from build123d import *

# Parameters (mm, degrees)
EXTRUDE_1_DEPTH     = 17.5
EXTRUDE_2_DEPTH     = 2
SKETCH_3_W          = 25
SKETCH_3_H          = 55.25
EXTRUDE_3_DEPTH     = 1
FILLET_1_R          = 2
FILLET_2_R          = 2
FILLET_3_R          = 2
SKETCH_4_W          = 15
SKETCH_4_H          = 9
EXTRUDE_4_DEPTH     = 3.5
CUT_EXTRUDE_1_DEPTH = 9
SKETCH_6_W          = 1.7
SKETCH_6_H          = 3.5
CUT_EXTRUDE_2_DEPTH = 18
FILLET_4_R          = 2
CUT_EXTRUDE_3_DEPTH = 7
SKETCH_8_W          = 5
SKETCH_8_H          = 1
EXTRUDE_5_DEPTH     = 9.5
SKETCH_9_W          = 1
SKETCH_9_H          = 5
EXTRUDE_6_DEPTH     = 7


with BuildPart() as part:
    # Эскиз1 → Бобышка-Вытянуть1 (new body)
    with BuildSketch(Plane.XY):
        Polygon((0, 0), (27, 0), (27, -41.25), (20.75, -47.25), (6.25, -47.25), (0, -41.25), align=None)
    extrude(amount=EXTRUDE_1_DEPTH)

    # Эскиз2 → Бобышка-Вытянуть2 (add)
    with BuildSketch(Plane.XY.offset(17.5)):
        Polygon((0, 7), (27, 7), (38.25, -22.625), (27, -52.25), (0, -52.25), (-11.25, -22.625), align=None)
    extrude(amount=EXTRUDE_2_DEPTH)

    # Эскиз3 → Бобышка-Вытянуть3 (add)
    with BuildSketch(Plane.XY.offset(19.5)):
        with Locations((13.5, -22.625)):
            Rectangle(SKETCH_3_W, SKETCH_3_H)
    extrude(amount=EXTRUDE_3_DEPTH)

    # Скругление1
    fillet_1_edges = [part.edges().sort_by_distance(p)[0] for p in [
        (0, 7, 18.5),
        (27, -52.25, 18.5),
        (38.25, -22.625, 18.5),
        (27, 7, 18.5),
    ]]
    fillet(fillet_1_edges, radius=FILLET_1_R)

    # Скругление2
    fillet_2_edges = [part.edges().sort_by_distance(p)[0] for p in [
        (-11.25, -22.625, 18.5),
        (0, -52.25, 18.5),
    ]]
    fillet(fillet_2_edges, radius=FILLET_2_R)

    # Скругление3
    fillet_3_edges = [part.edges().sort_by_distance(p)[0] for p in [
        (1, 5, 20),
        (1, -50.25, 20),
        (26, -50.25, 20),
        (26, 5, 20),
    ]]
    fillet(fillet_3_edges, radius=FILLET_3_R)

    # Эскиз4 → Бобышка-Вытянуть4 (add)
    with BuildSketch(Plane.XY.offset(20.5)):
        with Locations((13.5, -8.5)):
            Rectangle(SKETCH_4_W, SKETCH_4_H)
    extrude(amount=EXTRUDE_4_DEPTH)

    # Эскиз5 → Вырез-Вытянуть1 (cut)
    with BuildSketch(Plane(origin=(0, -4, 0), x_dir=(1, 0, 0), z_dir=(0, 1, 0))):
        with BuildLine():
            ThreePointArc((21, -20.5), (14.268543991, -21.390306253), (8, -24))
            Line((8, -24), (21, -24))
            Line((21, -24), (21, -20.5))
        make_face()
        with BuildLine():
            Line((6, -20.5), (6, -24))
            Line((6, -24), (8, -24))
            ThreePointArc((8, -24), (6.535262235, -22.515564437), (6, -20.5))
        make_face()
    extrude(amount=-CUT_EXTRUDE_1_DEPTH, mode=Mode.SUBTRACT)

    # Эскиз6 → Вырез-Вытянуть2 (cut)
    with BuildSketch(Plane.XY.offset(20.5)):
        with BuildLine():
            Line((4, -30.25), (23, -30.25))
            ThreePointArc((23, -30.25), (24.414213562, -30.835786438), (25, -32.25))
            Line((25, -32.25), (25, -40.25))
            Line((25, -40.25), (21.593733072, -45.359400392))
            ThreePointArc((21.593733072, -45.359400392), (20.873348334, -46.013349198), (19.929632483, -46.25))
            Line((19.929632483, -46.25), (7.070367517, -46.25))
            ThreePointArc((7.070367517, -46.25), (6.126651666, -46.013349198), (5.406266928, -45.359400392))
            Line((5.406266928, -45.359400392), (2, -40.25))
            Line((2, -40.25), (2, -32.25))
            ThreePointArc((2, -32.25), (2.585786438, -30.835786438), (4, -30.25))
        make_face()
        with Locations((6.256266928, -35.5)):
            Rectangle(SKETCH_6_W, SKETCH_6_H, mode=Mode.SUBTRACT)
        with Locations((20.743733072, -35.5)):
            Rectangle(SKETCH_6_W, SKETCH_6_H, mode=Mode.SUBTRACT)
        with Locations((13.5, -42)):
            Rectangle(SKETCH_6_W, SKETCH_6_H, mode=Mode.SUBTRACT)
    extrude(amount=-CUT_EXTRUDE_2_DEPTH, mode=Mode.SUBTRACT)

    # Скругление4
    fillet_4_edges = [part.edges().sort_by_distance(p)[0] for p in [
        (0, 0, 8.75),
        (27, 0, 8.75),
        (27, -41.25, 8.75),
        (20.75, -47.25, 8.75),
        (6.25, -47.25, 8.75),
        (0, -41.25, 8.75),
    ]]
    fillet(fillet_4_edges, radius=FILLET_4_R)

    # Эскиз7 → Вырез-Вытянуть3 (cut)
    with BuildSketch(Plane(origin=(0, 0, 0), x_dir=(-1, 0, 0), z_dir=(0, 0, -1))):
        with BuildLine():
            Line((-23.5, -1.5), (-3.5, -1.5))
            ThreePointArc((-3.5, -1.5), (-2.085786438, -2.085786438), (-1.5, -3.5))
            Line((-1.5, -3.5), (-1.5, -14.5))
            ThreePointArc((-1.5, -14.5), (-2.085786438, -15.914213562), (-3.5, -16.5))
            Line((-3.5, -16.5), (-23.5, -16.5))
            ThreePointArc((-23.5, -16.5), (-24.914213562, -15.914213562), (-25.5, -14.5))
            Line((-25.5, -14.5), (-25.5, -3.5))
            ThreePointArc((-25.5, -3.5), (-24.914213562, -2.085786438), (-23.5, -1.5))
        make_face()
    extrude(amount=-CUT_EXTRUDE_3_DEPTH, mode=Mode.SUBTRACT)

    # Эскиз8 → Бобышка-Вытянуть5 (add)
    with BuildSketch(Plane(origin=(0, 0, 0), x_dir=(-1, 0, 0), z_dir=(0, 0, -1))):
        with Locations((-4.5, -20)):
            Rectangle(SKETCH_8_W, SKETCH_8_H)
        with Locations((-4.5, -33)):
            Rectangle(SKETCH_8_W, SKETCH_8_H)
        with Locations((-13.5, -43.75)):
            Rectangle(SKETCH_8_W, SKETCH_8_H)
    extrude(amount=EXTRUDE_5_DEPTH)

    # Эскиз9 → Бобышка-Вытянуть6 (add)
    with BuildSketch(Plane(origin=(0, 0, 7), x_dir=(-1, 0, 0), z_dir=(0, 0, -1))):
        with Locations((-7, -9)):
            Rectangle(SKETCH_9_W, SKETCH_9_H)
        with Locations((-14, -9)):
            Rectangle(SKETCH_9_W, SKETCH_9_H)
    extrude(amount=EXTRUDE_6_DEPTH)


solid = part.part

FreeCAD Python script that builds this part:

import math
import FreeCAD as App
import Part
import Sketcher

V = App.Vector


def edges_at(feature, points):
    """Names of the edges that pass closest to the given points."""
    edges = feature.Shape.Edges
    near = lambda p: min(range(len(edges)), key=lambda i: edges[i].distToShape(Part.Vertex(*p))[0])
    return sorted({f"Edge{near(p) + 1}" for p in points})


def add_polygon(sketch, points):
    """Adds a closed chain of lines whose ends are joined by coincident constraints."""
    first, n = sketch.GeometryCount, len(points)
    for a, b in zip(points, points[1:] + points[:1]):
        sketch.addGeometry(Part.LineSegment(App.Vector(*a, 0), App.Vector(*b, 0)), False)
    for i in range(n):
        sketch.addConstraint(Sketcher.Constraint("Coincident", first + i, 2, first + (i + 1) % n, 1))

doc = App.newDocument("Part")
params = doc.addObject("Spreadsheet::Sheet", "Params")
for row, (alias, value) in enumerate([
    ("sketch1_width", "27 mm"),
    ("sketch1_width2", "14.5 mm"),
    ("sketch1_height", "41.25 mm"),
    ("pad1_length", "17.5 mm"),
    ("sketch2_width", "27 mm"),
    ("pad2_length", "2 mm"),
    ("sketch3_width", "25 mm"),
    ("sketch3_height", "55.25 mm"),
    ("pad3_length", "1 mm"),
    ("fillet_radius", "2 mm"),
    ("fillet2_radius", "2 mm"),
    ("fillet3_radius", "2 mm"),
    ("sketch4_width", "15 mm"),
    ("sketch4_height", "9 mm"),
    ("pad4_length", "3.5 mm"),
    ("sketch5_width", "13 mm"),
    ("sketch5_width2", "2 mm"),
    ("sketch5_height", "3.5 mm"),
    ("pocket1_length", "9 mm"),
    ("sketch6_radius", "2 mm"),
    ("sketch6_width", "19 mm"),
    ("sketch6_height", "8 mm"),
    ("sketch6_width2", "1.7 mm"),
    ("sketch6_height2", "3.5 mm"),
    ("pocket2_length", "18 mm"),
    ("fillet4_radius", "2 mm"),
    ("sketch7_radius", "2 mm"),
    ("sketch7_width", "20 mm"),
    ("sketch7_height", "11 mm"),
    ("pocket3_length", "7 mm"),
    ("sketch8_width", "5 mm"),
    ("sketch8_height", "1 mm"),
    ("pad5_length", "9.5 mm"),
    ("sketch9_width", "1 mm"),
    ("sketch9_height", "5 mm"),
    ("pad6_length", "7 mm"),
], start=1):
    params.set(f"A{row}", alias)
    params.set(f"B{row}", "=" + value)
    params.setAlias(f"B{row}", alias)

body = doc.addObject("PartDesign::Body", "Body")

sketch1 = body.newObject("Sketcher::SketchObject", "Sketch")
sketch1.AttachmentSupport = (doc.getObject("XY_Plane"), [""])
sketch1.MapMode = "FlatFace"
add_polygon(sketch1, [(27, 0), (0, 0), (0, -41.25), (6.25, -47.25), (20.75, -47.25), (27, -41.25)])
sketch1.addConstraint([
    Sketcher.Constraint("Horizontal", 0),
    Sketcher.Constraint("Vertical", 1),
    Sketcher.Constraint("Horizontal", 3),
    Sketcher.Constraint("Vertical", 5),
    Sketcher.Constraint("Coincident", 0, 2, -1, 1),
    Sketcher.Constraint("Horizontal", 1, 2, 4, 2),
    Sketcher.Constraint("Equal", 2, 4),
    Sketcher.Constraint("DistanceX", 0, 2, 0, 1, 27.0),
    Sketcher.Constraint("DistanceX", 3, 1, 3, 2, 14.5),
    Sketcher.Constraint("DistanceY", 2, 2, 1, 2, 6.0),
    Sketcher.Constraint("DistanceY", 1, 2, 1, 1, 41.25),
])
sketch1.setExpression("Constraints[13]", "Params.sketch1_width")
sketch1.setExpression("Constraints[14]", "Params.sketch1_width2")
sketch1.setExpression("Constraints[16]", "Params.sketch1_height")
pad1 = body.newObject("PartDesign::Pad", "Pad")
pad1.Profile = sketch1
pad1.setExpression("Length", "Params.pad1_length")

sketch2 = body.newObject("Sketcher::SketchObject", "Sketch001")
sketch2.AttachmentSupport = (doc.getObject("XY_Plane"), [""])
sketch2.MapMode = "FlatFace"
sketch2.AttachmentOffset = App.Placement(V(0, 0, 17.5), App.Rotation())
add_polygon(sketch2, [(27, 7), (0, 7), (-11.25, -22.625), (0, -52.25), (27, -52.25), (38.25, -22.625)])
sketch2.addConstraint([
    Sketcher.Constraint("Horizontal", 0),
    Sketcher.Constraint("Horizontal", 3),
    Sketcher.Constraint("PointOnObject", 0, 2, -2),
    Sketcher.Constraint("PointOnObject", 2, 2, -2),
    Sketcher.Constraint("Parallel", 1, 4),
    Sketcher.Constraint("Parallel", 2, 5),
    Sketcher.Constraint("Horizontal", 1, 2, 4, 2),
    Sketcher.Constraint("Vertical", 3, 2, 5, 2),
    Sketcher.Constraint("DistanceX", 0, 2, 0, 1, 27.0),
    Sketcher.Constraint("DistanceY", -1, 1, 0, 2, 7.0),
    Sketcher.Constraint("DistanceX", 1, 2, 4, 2, 49.5),
    Sketcher.Constraint("DistanceY", 2, 2, -1, 1, 52.25),
])
sketch2.setExpression("Constraints[14]", "Params.sketch2_width")
pad2 = body.newObject("PartDesign::Pad", "Pad001")
pad2.Profile = sketch2
pad2.setExpression("Length", "Params.pad2_length")

sketch3 = body.newObject("Sketcher::SketchObject", "Sketch002")
sketch3.AttachmentSupport = (doc.getObject("XY_Plane"), [""])
sketch3.MapMode = "FlatFace"
sketch3.AttachmentOffset = App.Placement(V(0, 0, 19.5), App.Rotation())
add_polygon(sketch3, [(1, 5), (1, -50.25), (26, -50.25), (26, 5)])
sketch3.addConstraint([
    Sketcher.Constraint("Vertical", 0),
    Sketcher.Constraint("Horizontal", 1),
    Sketcher.Constraint("Vertical", 2),
    Sketcher.Constraint("Horizontal", 3),
    Sketcher.Constraint("DistanceX", 1, 1, 1, 2, 25.0),
    Sketcher.Constraint("DistanceX", -1, 1, 0, 2, 1.0),
    Sketcher.Constraint("DistanceY", -1, 1, 2, 2, 5.0),
    Sketcher.Constraint("DistanceY", 0, 2, 0, 1, 55.25),
])
sketch3.setExpression("Constraints[8]", "Params.sketch3_width")
sketch3.setExpression("Constraints[11]", "Params.sketch3_height")
pad3 = body.newObject("PartDesign::Pad", "Pad002")
pad3.Profile = sketch3
pad3.setExpression("Length", "Params.pad3_length")
doc.recompute()

fillet = body.newObject("PartDesign::Fillet", "Fillet")
fillet.Base = (pad3, edges_at(pad3, [
    (0, 7, 18.5),
    (27, -52.25, 18.5),
    (38.25, -22.625, 18.5),
    (27, 7, 18.5),
]))
fillet.setExpression("Radius", "Params.fillet_radius")
doc.recompute()

fillet2 = body.newObject("PartDesign::Fillet", "Fillet001")
fillet2.Base = (fillet, edges_at(fillet, [(-11.25, -22.625, 18.5), (0, -52.25, 18.5)]))
fillet2.setExpression("Radius", "Params.fillet2_radius")
doc.recompute()

fillet3 = body.newObject("PartDesign::Fillet", "Fillet002")
fillet3.Base = (fillet2, edges_at(fillet2, [
    (1, 5, 20),
    (1, -50.25, 20),
    (26, -50.25, 20),
    (26, 5, 20),
]))
fillet3.setExpression("Radius", "Params.fillet3_radius")

sketch4 = body.newObject("Sketcher::SketchObject", "Sketch003")
sketch4.AttachmentSupport = (doc.getObject("XY_Plane"), [""])
sketch4.MapMode = "FlatFace"
sketch4.AttachmentOffset = App.Placement(V(0, 0, 20.5), App.Rotation())
add_polygon(sketch4, [(6, -4), (6, -13), (21, -13), (21, -4)])
sketch4.addConstraint([
    Sketcher.Constraint("Vertical", 0),
    Sketcher.Constraint("Horizontal", 1),
    Sketcher.Constraint("Vertical", 2),
    Sketcher.Constraint("Horizontal", 3),
    Sketcher.Constraint("DistanceX", 1, 1, 1, 2, 15.0),
    Sketcher.Constraint("DistanceY", 0, 2, 0, 1, 9.0),
    Sketcher.Constraint("DistanceX", -1, 1, 0, 2, 6.0),
    Sketcher.Constraint("DistanceY", 0, 2, -1, 1, 13.0),
])
sketch4.setExpression("Constraints[8]", "Params.sketch4_width")
sketch4.setExpression("Constraints[9]", "Params.sketch4_height")
pad4 = body.newObject("PartDesign::Pad", "Pad003")
pad4.Profile = sketch4
pad4.setExpression("Length", "Params.pad4_length")

sketch5 = body.newObject("Sketcher::SketchObject", "Sketch004")
sketch5.AttachmentSupport = (doc.getObject("XZ_Plane"), [""])
sketch5.MapMode = "FlatFace"
sketch5.AttachmentOffset = App.Placement(V(0, 0, 4), App.Rotation())
sketch5.addGeometry([
    Part.ArcOfCircle(Part.Circle(V(21, 46.392857, 0), V(0, 0, 1), 25.892857), math.radians(-120.136976), math.radians(-90)),
    Part.LineSegment(V(8, 24, 0), V(21, 24, 0)),
    Part.LineSegment(V(21, 24, 0), V(21, 20.5, 0)),
    Part.LineSegment(V(6, 20.5, 0), V(6, 24, 0)),
    Part.LineSegment(V(6, 24, 0), V(8, 24, 0)),
    Part.ArcOfCircle(Part.Circle(V(10.0625, 20.5, 0), V(0, 0, 1), 4.0625), math.radians(120.510237), math.radians(180)),
], False)
sketch5.addConstraint([
    Sketcher.Constraint("Coincident", 0, 1, 1, 1),
    Sketcher.Constraint("Coincident", 1, 2, 2, 1),
    Sketcher.Constraint("Coincident", 2, 2, 0, 2),
    Sketcher.Constraint("Coincident", 3, 2, 4, 1),
    Sketcher.Constraint("Coincident", 4, 2, 5, 1),
    Sketcher.Constraint("Tangent", 5, 2, 3, 1),
    Sketcher.Constraint("Horizontal", 1),
    Sketcher.Constraint("Vertical", 2),
    Sketcher.Constraint("Vertical", 3),
    Sketcher.Constraint("Horizontal", 4),
    Sketcher.Constraint("Coincident", 4, 2, 0, 1),
    Sketcher.Constraint("Horizontal", 5, 3, 2, 2),
    Sketcher.Constraint("Vertical", 0, 3, 1, 2),
    Sketcher.Constraint("DistanceX", 1, 1, 1, 2, 13.0),
    Sketcher.Constraint("DistanceX", 4, 1, 4, 2, 2.0),
    Sketcher.Constraint("DistanceY", 2, 2, 2, 1, 3.5),
    Sketcher.Constraint("DistanceX", -1, 1, 0, 3, 21.0),
    Sketcher.Constraint("DistanceY", -1, 1, 0, 1, 24.0),
])
sketch5.setExpression("Constraints[13]", "Params.sketch5_width")
sketch5.setExpression("Constraints[14]", "Params.sketch5_width2")
sketch5.setExpression("Constraints[15]", "Params.sketch5_height")
pocket1 = body.newObject("PartDesign::Pocket", "Pocket")
pocket1.Profile = sketch5
pocket1.setExpression("Length", "Params.pocket1_length")
pocket1.Reversed = True

sketch6 = body.newObject("Sketcher::SketchObject", "Sketch005")
sketch6.AttachmentSupport = (doc.getObject("XY_Plane"), [""])
sketch6.MapMode = "FlatFace"
sketch6.AttachmentOffset = App.Placement(V(0, 0, 20.5), App.Rotation())
sketch6.addGeometry(Part.LineSegment(V(23, -30.25, 0), V(4, -30.25, 0)), False)
sketch6.addGeometry(Part.ArcOfCircle(Part.Circle(V(4, -32.25, 0), V(0, 0, 1), 2), math.radians(90), math.radians(180)), False)
sketch6.addGeometry(Part.LineSegment(V(2, -32.25, 0), V(2, -40.25, 0)), False)
sketch6.addGeometry(Part.LineSegment(V(2, -40.25, 0), V(5.406267, -45.3594, 0)), False)
sketch6.addGeometry(Part.ArcOfCircle(Part.Circle(V(7.070368, -44.25, 0), V(0, 0, 1), 2), math.radians(-146.309933), math.radians(-90)), False)
sketch6.addGeometry(Part.LineSegment(V(7.070368, -46.25, 0), V(19.929632, -46.25, 0)), False)
sketch6.addGeometry(Part.ArcOfCircle(Part.Circle(V(19.929632, -44.25, 0), V(0, 0, 1), 2), math.radians(-90), math.radians(-33.690067)), False)
sketch6.addGeometry(Part.LineSegment(V(21.593733, -45.3594, 0), V(25, -40.25, 0)), False)
sketch6.addGeometry(Part.LineSegment(V(25, -40.25, 0), V(25, -32.25, 0)), False)
sketch6.addGeometry(Part.ArcOfCircle(Part.Circle(V(23, -32.25, 0), V(0, 0, 1), 2), math.radians(0), math.radians(90)), False)
add_polygon(sketch6, [(12.65, -43.75), (12.65, -40.25), (14.35, -40.25), (14.35, -43.75)])
add_polygon(sketch6, [(19.893733, -37.25), (19.893733, -33.75), (21.593733, -33.75), (21.593733, -37.25)])
add_polygon(sketch6, [(5.406267, -37.25), (5.406267, -33.75), (7.106267, -33.75), (7.106267, -37.25)])
sketch6.addConstraint([
    Sketcher.Constraint("Tangent", 0, 2, 1, 1),
    Sketcher.Constraint("Tangent", 1, 2, 2, 1),
    Sketcher.Constraint("Coincident", 2, 2, 3, 1),
    Sketcher.Constraint("Tangent", 3, 2, 4, 1),
    Sketcher.Constraint("Tangent", 4, 2, 5, 1),
    Sketcher.Constraint("Tangent", 5, 2, 6, 1),
    Sketcher.Constraint("Tangent", 6, 2, 7, 1),
    Sketcher.Constraint("Coincident", 7, 2, 8, 1),
    Sketcher.Constraint("Tangent", 8, 2, 9, 1),
    Sketcher.Constraint("Tangent", 9, 2, 0, 1),
    Sketcher.Constraint("Horizontal", 0),
    Sketcher.Constraint("Vertical", 2),
    Sketcher.Constraint("Horizontal", 5),
    Sketcher.Constraint("Vertical", 8),
    Sketcher.Constraint("Vertical", 10),
    Sketcher.Constraint("Horizontal", 11),
    Sketcher.Constraint("Vertical", 12),
    Sketcher.Constraint("Horizontal", 13),
    Sketcher.Constraint("Vertical", 14),
    Sketcher.Constraint("Horizontal", 15),
    Sketcher.Constraint("Vertical", 16),
    Sketcher.Constraint("Horizontal", 17),
    Sketcher.Constraint("Vertical", 18),
    Sketcher.Constraint("Horizontal", 19),
    Sketcher.Constraint("Vertical", 20),
    Sketcher.Constraint("Horizontal", 21),
    Sketcher.Constraint("Equal", 1, 4),
    Sketcher.Constraint("Equal", 4, 6),
    Sketcher.Constraint("Equal", 6, 9),
    Sketcher.Constraint("Horizontal", 3, 2, 6, 2),
    Sketcher.Constraint("Horizontal", 2, 2, 7, 2),
    Sketcher.Constraint("Horizontal", 7, 2, 10, 2),
    Sketcher.Constraint("Horizontal", 15, 2, 18, 2),
    Sketcher.Constraint("Horizontal", 17, 2, 20, 2),
    Sketcher.Constraint("Vertical", 6, 2, 15, 2),
    Sketcher.Constraint("Vertical", 3, 2, 18, 2),
    Sketcher.Constraint("Equal", 13, 15),
    Sketcher.Constraint("Equal", 17, 19),
    Sketcher.Constraint("Equal", 12, 14),
    Sketcher.Constraint("Radius", 1, 2.0),
    Sketcher.Constraint("DistanceX", 0, 2, 0, 1, 19.0),
    Sketcher.Constraint("DistanceY", 2, 2, 2, 1, 8.0),
    Sketcher.Constraint("DistanceX", 11, 1, 11, 2, 1.7),
    Sketcher.Constraint("DistanceY", 10, 1, 10, 2, 3.5),
    Sketcher.Constraint("DistanceX", -1, 1, 1, 3, 4.0),
    Sketcher.Constraint("DistanceY", 4, 3, 1, 3, 12.0),
    Sketcher.Constraint("DistanceY", 7, 2, 16, 2, 3.0),
    Sketcher.Constraint("DistanceY", 1, 3, -1, 1, 32.25),
    Sketcher.Constraint("DistanceX", -1, 1, 10, 2, 12.65),
    Sketcher.Constraint("DistanceY", 3, 2, -1, 1, 45.3594),
])
sketch6.setExpression("Constraints[51]", "Params.sketch6_radius")
sketch6.setExpression("Constraints[52]", "Params.sketch6_width")
sketch6.setExpression("Constraints[53]", "Params.sketch6_height")
sketch6.setExpression("Constraints[54]", "Params.sketch6_width2")
sketch6.setExpression("Constraints[55]", "Params.sketch6_height2")
pocket2 = body.newObject("PartDesign::Pocket", "Pocket001")
pocket2.Profile = sketch6
pocket2.setExpression("Length", "Params.pocket2_length")
doc.recompute()

fillet4 = body.newObject("PartDesign::Fillet", "Fillet003")
fillet4.Base = (pocket2, edges_at(pocket2, [
    (0, 0, 8.75),
    (27, 0, 8.75),
    (27, -41.25, 8.75),
    (20.75, -47.25, 8.75),
    (6.25, -47.25, 8.75),
    (0, -41.25, 8.75),
]))
fillet4.setExpression("Radius", "Params.fillet4_radius")

sketch7 = body.newObject("Sketcher::SketchObject", "Sketch006")
sketch7.AttachmentSupport = (doc.getObject("XY_Plane"), [""])
sketch7.MapMode = "FlatFace"
sketch7.addGeometry([
    Part.LineSegment(V(3.5, -1.5, 0), V(23.5, -1.5, 0)),
    Part.ArcOfCircle(Part.Circle(V(23.5, -3.5, 0), V(0, 0, 1), 2), math.radians(0), math.radians(90)),
    Part.LineSegment(V(25.5, -3.5, 0), V(25.5, -14.5, 0)),
    Part.ArcOfCircle(Part.Circle(V(23.5, -14.5, 0), V(0, 0, 1), 2), math.radians(-90), math.radians(0)),
    Part.LineSegment(V(23.5, -16.5, 0), V(3.5, -16.5, 0)),
    Part.ArcOfCircle(Part.Circle(V(3.5, -14.5, 0), V(0, 0, 1), 2), math.radians(-180), math.radians(-90)),
    Part.LineSegment(V(1.5, -14.5, 0), V(1.5, -3.5, 0)),
    Part.ArcOfCircle(Part.Circle(V(3.5, -3.5, 0), V(0, 0, 1), 2), math.radians(90), math.radians(180)),
], False)
sketch7.addConstraint([
    Sketcher.Constraint("Tangent", 0, 2, 1, 2),
    Sketcher.Constraint("Tangent", 1, 1, 2, 1),
    Sketcher.Constraint("Tangent", 2, 2, 3, 2),
    Sketcher.Constraint("Tangent", 3, 1, 4, 1),
    Sketcher.Constraint("Tangent", 4, 2, 5, 2),
    Sketcher.Constraint("Tangent", 5, 1, 6, 1),
    Sketcher.Constraint("Tangent", 6, 2, 7, 2),
    Sketcher.Constraint("Tangent", 7, 1, 0, 1),
    Sketcher.Constraint("Horizontal", 0),
    Sketcher.Constraint("Vertical", 2),
    Sketcher.Constraint("Horizontal", 4),
    Sketcher.Constraint("Vertical", 6),
    Sketcher.Constraint("Equal", 1, 3),
    Sketcher.Constraint("Equal", 3, 5),
    Sketcher.Constraint("Equal", 5, 7),
    Sketcher.Constraint("Radius", 1, 2.0),
    Sketcher.Constraint("DistanceX", 0, 1, 0, 2, 20.0),
    Sketcher.Constraint("DistanceY", 2, 2, 2, 1, 11.0),
    Sketcher.Constraint("DistanceX", -1, 1, 1, 3, 23.5),
    Sketcher.Constraint("DistanceY", 1, 3, -1, 1, 3.5),
])
sketch7.setExpression("Constraints[15]", "Params.sketch7_radius")
sketch7.setExpression("Constraints[16]", "Params.sketch7_width")
sketch7.setExpression("Constraints[17]", "Params.sketch7_height")
pocket3 = body.newObject("PartDesign::Pocket", "Pocket002")
pocket3.Profile = sketch7
pocket3.setExpression("Length", "Params.pocket3_length")
pocket3.Reversed = True

sketch8 = body.newObject("Sketcher::SketchObject", "Sketch007")
sketch8.AttachmentSupport = (doc.getObject("XY_Plane"), [""])
sketch8.MapMode = "FlatFace"
add_polygon(sketch8, [(7, -19.5), (7, -20.5), (2, -20.5), (2, -19.5)])
add_polygon(sketch8, [(7, -32.5), (7, -33.5), (2, -33.5), (2, -32.5)])
add_polygon(sketch8, [(16, -43.25), (16, -44.25), (11, -44.25), (11, -43.25)])
sketch8.addConstraint([
    Sketcher.Constraint("Vertical", 0),
    Sketcher.Constraint("Horizontal", 1),
    Sketcher.Constraint("Vertical", 2),
    Sketcher.Constraint("Horizontal", 3),
    Sketcher.Constraint("Vertical", 4),
    Sketcher.Constraint("Horizontal", 5),
    Sketcher.Constraint("Vertical", 6),
    Sketcher.Constraint("Horizontal", 7),
    Sketcher.Constraint("Vertical", 8),
    Sketcher.Constraint("Horizontal", 9),
    Sketcher.Constraint("Vertical", 10),
    Sketcher.Constraint("Horizontal", 11),
    Sketcher.Constraint("Vertical", 3, 2, 4, 2),
    Sketcher.Constraint("Vertical", 2, 2, 5, 2),
    Sketcher.Constraint("Equal", 7, 9),
    Sketcher.Constraint("Equal", 2, 4),
    Sketcher.Constraint("Equal", 6, 8),
    Sketcher.Constraint("DistanceX", 1, 2, 1, 1, 5.0),
    Sketcher.Constraint("DistanceY", 0, 2, 0, 1, 1.0),
    Sketcher.Constraint("DistanceX", -1, 1, 0, 2, 7.0),
    Sketcher.Constraint("DistanceX", -1, 1, 8, 2, 16.0),
    Sketcher.Constraint("DistanceY", 4, 2, 0, 2, 13.0),
    Sketcher.Constraint("DistanceY", 0, 2, -1, 1, 20.5),
    Sketcher.Constraint("DistanceY", 8, 2, -1, 1, 44.25),
])
sketch8.setExpression("Constraints[29]", "Params.sketch8_width")
sketch8.setExpression("Constraints[30]", "Params.sketch8_height")
pad5 = body.newObject("PartDesign::Pad", "Pad004")
pad5.Profile = sketch8
pad5.setExpression("Length", "Params.pad5_length")
pad5.Reversed = True

sketch9 = body.newObject("Sketcher::SketchObject", "Sketch008")
sketch9.AttachmentSupport = (doc.getObject("XY_Plane"), [""])
sketch9.MapMode = "FlatFace"
sketch9.AttachmentOffset = App.Placement(V(0, 0, 7), App.Rotation())
add_polygon(sketch9, [(7.5, -6.5), (7.5, -11.5), (6.5, -11.5), (6.5, -6.5)])
add_polygon(sketch9, [(14.5, -6.5), (14.5, -11.5), (13.5, -11.5), (13.5, -6.5)])
sketch9.addConstraint([
    Sketcher.Constraint("Vertical", 0),
    Sketcher.Constraint("Horizontal", 1),
    Sketcher.Constraint("Vertical", 2),
    Sketcher.Constraint("Horizontal", 3),
    Sketcher.Constraint("Vertical", 4),
    Sketcher.Constraint("Horizontal", 5),
    Sketcher.Constraint("Vertical", 6),
    Sketcher.Constraint("Horizontal", 7),
    Sketcher.Constraint("Horizontal", 1, 2, 4, 2),
    Sketcher.Constraint("Horizontal", 3, 2, 6, 2),
    Sketcher.Constraint("Equal", 3, 5),
    Sketcher.Constraint("DistanceX", 1, 2, 1, 1, 1.0),
    Sketcher.Constraint("DistanceY", 0, 2, 0, 1, 5.0),
    Sketcher.Constraint("DistanceX", 0, 2, 4, 2, 7.0),
    Sketcher.Constraint("DistanceX", -1, 1, 0, 2, 7.5),
    Sketcher.Constraint("DistanceY", 0, 2, -1, 1, 11.5),
])
sketch9.setExpression("Constraints[19]", "Params.sketch9_width")
sketch9.setExpression("Constraints[20]", "Params.sketch9_height")
pad6 = body.newObject("PartDesign::Pad", "Pad005")
pad6.Profile = sketch9
pad6.setExpression("Length", "Params.pad6_length")
pad6.Reversed = True

doc.recompute()
